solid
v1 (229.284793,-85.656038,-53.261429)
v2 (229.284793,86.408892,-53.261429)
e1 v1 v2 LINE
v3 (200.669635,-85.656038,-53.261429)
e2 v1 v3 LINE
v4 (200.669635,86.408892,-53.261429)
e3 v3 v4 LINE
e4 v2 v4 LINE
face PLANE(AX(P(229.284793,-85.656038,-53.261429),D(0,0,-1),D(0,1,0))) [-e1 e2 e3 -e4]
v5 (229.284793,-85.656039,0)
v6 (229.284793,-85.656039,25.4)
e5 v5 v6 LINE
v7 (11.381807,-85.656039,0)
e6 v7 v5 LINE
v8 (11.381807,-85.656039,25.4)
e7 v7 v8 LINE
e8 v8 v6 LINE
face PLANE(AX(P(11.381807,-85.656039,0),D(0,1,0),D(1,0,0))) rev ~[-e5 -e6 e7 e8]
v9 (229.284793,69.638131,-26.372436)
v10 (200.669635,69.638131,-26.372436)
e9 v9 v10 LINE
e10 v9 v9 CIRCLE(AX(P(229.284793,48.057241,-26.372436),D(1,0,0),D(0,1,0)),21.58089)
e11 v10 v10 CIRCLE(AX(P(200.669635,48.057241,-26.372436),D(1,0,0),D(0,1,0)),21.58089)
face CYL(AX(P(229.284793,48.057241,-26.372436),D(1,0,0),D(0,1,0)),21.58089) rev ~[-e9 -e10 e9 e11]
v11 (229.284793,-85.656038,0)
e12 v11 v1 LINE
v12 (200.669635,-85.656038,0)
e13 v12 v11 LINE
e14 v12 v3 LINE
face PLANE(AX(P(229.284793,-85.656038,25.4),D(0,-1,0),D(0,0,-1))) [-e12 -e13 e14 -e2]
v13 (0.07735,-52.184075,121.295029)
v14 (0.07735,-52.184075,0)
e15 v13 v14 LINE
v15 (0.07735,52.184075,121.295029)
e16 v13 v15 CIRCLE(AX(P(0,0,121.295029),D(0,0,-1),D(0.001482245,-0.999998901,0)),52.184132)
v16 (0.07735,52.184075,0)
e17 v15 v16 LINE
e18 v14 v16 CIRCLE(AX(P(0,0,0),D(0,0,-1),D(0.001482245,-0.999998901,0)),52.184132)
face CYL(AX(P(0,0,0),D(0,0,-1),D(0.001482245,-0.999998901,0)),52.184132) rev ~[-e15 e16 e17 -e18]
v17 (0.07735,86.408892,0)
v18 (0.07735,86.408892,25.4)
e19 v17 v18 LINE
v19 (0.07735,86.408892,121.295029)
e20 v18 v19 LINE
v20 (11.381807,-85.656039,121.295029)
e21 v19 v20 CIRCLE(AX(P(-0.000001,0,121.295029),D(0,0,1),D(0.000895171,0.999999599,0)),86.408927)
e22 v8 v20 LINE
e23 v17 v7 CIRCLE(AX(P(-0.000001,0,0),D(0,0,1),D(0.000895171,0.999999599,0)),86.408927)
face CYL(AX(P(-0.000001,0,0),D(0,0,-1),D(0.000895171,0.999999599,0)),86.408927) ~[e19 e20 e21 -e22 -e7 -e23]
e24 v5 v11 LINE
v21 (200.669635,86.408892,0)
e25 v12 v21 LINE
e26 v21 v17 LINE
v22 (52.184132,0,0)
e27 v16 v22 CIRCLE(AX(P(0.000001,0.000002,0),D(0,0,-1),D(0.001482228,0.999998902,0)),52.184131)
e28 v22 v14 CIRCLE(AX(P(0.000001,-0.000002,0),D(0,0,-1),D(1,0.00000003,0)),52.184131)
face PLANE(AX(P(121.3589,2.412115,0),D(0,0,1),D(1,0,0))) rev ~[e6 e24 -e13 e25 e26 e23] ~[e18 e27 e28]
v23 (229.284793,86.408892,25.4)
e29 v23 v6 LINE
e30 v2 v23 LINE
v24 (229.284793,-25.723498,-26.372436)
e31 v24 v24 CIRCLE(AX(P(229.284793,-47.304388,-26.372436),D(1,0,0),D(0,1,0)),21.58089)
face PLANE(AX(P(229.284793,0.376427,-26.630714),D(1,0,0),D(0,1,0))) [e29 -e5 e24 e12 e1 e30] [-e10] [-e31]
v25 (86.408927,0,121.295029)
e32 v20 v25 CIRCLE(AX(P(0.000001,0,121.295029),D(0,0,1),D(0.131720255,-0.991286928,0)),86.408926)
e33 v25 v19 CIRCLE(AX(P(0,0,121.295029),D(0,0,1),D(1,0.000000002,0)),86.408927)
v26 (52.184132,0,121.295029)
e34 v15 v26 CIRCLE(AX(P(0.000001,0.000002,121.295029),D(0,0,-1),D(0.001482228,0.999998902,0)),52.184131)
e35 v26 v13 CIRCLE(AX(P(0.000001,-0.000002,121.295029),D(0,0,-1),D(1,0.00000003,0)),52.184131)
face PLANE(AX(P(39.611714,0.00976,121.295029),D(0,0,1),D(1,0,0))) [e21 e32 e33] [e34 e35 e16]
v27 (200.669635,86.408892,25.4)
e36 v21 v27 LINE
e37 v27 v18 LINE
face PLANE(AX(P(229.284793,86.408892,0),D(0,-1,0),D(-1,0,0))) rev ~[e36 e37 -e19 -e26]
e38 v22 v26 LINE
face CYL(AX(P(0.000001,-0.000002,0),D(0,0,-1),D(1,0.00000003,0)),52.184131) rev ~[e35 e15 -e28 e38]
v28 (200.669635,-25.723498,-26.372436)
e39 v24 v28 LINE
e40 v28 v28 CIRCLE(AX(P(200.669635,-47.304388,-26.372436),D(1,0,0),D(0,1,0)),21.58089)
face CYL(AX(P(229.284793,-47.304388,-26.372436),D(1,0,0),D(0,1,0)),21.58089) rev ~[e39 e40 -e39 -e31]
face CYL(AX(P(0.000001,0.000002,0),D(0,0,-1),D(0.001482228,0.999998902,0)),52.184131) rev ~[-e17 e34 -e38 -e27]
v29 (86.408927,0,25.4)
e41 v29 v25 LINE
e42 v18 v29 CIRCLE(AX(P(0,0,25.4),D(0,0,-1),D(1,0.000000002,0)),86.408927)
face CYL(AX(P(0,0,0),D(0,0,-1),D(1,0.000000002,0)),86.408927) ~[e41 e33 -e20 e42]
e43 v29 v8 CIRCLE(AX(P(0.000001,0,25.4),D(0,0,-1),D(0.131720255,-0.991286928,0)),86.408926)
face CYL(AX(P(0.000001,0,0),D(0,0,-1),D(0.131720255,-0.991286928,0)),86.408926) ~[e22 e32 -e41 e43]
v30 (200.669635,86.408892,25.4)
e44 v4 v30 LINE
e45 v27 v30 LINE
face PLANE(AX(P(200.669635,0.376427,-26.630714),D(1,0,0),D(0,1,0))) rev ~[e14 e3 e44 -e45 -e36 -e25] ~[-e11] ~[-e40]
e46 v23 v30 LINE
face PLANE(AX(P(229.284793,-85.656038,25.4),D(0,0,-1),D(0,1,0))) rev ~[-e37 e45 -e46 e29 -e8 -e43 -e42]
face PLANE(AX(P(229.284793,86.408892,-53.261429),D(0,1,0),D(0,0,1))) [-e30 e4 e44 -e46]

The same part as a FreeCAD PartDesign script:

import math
import FreeCAD as App
import Part
import Sketcher
Q = App.Units.Quantity

doc = App.newDocument("Part")
params = doc.addObject("Spreadsheet::Sheet", "Params")
for row, (alias, value) in enumerate([
    ("pad1_length", "1 in"),
    ("pad2_length", "121.295029 mm"),
    ("pad3_length", "28.615158 mm"),
], start=1):
    params.set(f"A{row}", alias)
    params.set(f"B{row}", "=" + value)
    params.setAlias(f"B{row}", alias)

body = doc.addObject("PartDesign::Body", "Body")

sketch1 = body.newObject("Sketcher::SketchObject", "Sketch")
sketch1.AttachmentSupport = (doc.getObject("XY_Plane"), [""])
sketch1.MapMode = "FlatFace"
sketch1.addGeometry([
    Part.LineSegment(App.Vector(11.381807, -85.656039, 0), App.Vector(229.284793, -85.656039, 0)),
    Part.LineSegment(App.Vector(229.284793, -85.656039, 0), App.Vector(229.284793, 86.408892, 0)),
    Part.LineSegment(App.Vector(229.284793, 86.408892, 0), App.Vector(0.07735, 86.408892, 0)),
    Part.ArcOfCircle(Part.Circle(App.Vector(-0.000001, 0, 0), App.Vector(0, 0, 1), 86.408927), math.radians(89.94871), math.radians(277.569012)),
    Part.ArcOfCircle(Part.Circle(App.Vector(0.000001, 0.000002, 0), App.Vector(0, 0, 1), 52.184131), math.radians(-0.000002), math.radians(89.915075)),
    Part.ArcOfCircle(Part.Circle(App.Vector(0.000001, -0.000002, 0), App.Vector(0, 0, 1), 52.184131), math.radians(-89.915075), math.radians(0.000002)),
    Part.ArcOfCircle(Part.Circle(App.Vector(0, 0, 0), App.Vector(0, 0, 1), 52.184132), math.radians(89.915074), math.radians(270.084926)),
], False)
sketch1.addConstraint([
    Sketcher.Constraint("Coincident", 0, 2, 1, 1),
    Sketcher.Constraint("Coincident", 1, 2, 2, 1),
    Sketcher.Constraint("Coincident", 2, 2, 3, 1),
    Sketcher.Constraint("Coincident", 3, 2, 0, 1),
    Sketcher.Constraint("Tangent", 4, 1, 5, 2),
    Sketcher.Constraint("Tangent", 5, 1, 6, 2),
    Sketcher.Constraint("Tangent", 6, 1, 4, 2),
    Sketcher.Constraint("Horizontal", 0),
    Sketcher.Constraint("Vertical", 1),
    Sketcher.Constraint("Horizontal", 2),
    Sketcher.Constraint("Coincident", 3, 3, -1, 1),
    Sketcher.Constraint("Coincident", 4, 3, -1, 1),
    Sketcher.Constraint("PointOnObject", 4, 1, -1),
    Sketcher.Constraint("Vertical", 2, 2, 5, 1),
    Sketcher.Constraint("Vertical", 5, 1, 6, 1),
    Sketcher.Constraint("Radius", 4, Q("52.184131 mm")),
    Sketcher.Constraint("Radius", 3, Q("86.408927 mm")),
    Sketcher.Constraint("DistanceY", 1, 1, 1, 2, Q("172.064931 mm")),
    Sketcher.Constraint("DistanceX", 0, 1, 0, 2, Q("217.902986 mm")),
    Sketcher.Constraint("DistanceX", 2, 2, 2, 1, Q("229.207443 mm")),
])
pad1 = body.newObject("PartDesign::Pad", "Pad")
pad1.Profile = sketch1
pad1.setExpression("Length", "Params.pad1_length")

sketch2 = body.newObject("Sketcher::SketchObject", "Sketch001")
sketch2.AttachmentSupport = (doc.getObject("XY_Plane"), [""])
sketch2.MapMode = "FlatFace"
sketch2.addGeometry([
    Part.ArcOfCircle(Part.Circle(App.Vector(0.000001, 0, 0), App.Vector(0, 0, 1), 86.408926), math.radians(-82.430989), math.radians(0)),
    Part.ArcOfCircle(Part.Circle(App.Vector(0, 0, 0), App.Vector(0, 0, 1), 86.408927), math.radians(0), math.radians(89.948711)),
    Part.ArcOfCircle(Part.Circle(App.Vector(-0.000001, 0, 0), App.Vector(0, 0, 1), 86.408927), math.radians(89.94871), math.radians(277.569012)),
    Part.ArcOfCircle(Part.Circle(App.Vector(0.000001, 0.000002, 0), App.Vector(0, 0, 1), 52.184131), math.radians(-0.000002), math.radians(89.915075)),
    Part.ArcOfCircle(Part.Circle(App.Vector(0.000001, -0.000002, 0), App.Vector(0, 0, 1), 52.184131), math.radians(-89.915075), math.radians(0.000002)),
    Part.ArcOfCircle(Part.Circle(App.Vector(0, 0, 0), App.Vector(0, 0, 1), 52.184132), math.radians(89.915074), math.radians(270.084926)),
], False)
sketch2.addConstraint([
    Sketcher.Constraint("Tangent", 0, 2, 1, 1),
    Sketcher.Constraint("Tangent", 1, 2, 2, 1),
    Sketcher.Constraint("Tangent", 2, 2, 0, 1),
    Sketcher.Constraint("Tangent", 3, 1, 4, 2),
    Sketcher.Constraint("Tangent", 4, 1, 5, 2),
    Sketcher.Constraint("Tangent", 5, 1, 3, 2),
    Sketcher.Constraint("Coincident", 0, 3, -1, 1),
    Sketcher.Constraint("Coincident", 3, 3, -1, 1),
    Sketcher.Constraint("PointOnObject", 0, 2, -1),
    Sketcher.Constraint("PointOnObject", 3, 1, -1),
    Sketcher.Constraint("Vertical", 1, 2, 4, 1),
    Sketcher.Constraint("Vertical", 4, 1, 5, 1),
    Sketcher.Constraint("Radius", 3, Q("52.184131 mm")),
    Sketcher.Constraint("Radius", 0, Q("86.408926 mm")),
    Sketcher.Constraint("DistanceX", -1, 1, 1, 2, Q("0.07735 mm")),
    Sketcher.Constraint("DistanceY", 2, 2, -1, 1, Q("85.656039 mm")),
])
pad2 = body.newObject("PartDesign::Pad", "Pad001")
pad2.Profile = sketch2
pad2.setExpression("Length", "Params.pad2_length")

sketch3 = body.newObject("Sketcher::SketchObject", "Sketch002")
sketch3.AttachmentSupport = (doc.getObject("YZ_Plane"), [""])
sketch3.MapMode = "FlatFace"
sketch3.AttachmentOffset = App.Placement(App.Vector(0, 0, 229.284793), App.Rotation())
sketch3.addGeometry([
    Part.LineSegment(App.Vector(-85.656038, -53.261429, 0), App.Vector(86.408892, -53.261429, 0)),
    Part.LineSegment(App.Vector(86.408892, -53.261429, 0), App.Vector(86.408892, 25.4, 0)),
    Part.LineSegment(App.Vector(86.408892, 25.4, 0), App.Vector(-85.656038, 25.4, 0)),
    Part.LineSegment(App.Vector(-85.656038, 25.4, 0), App.Vector(-85.656038, -53.261429, 0)),
], False)
sketch3.addConstraint([
    Sketcher.Constraint("Coincident", 0, 2, 1, 1),
    Sketcher.Constraint("Coincident", 1, 2, 2, 1),
    Sketcher.Constraint("Coincident", 2, 2, 3, 1),
    Sketcher.Constraint("Coincident", 3, 2, 0, 1),
    Sketcher.Constraint("Horizontal", 0),
    Sketcher.Constraint("Vertical", 1),
    Sketcher.Constraint("Horizontal", 2),
    Sketcher.Constraint("Vertical", 3),
    Sketcher.Constraint("DistanceY", -1, 1, 1, 2, Q("1 in")),
    Sketcher.Constraint("DistanceX", 0, 1, 0, 2, Q("172.064931 mm")),
    Sketcher.Constraint("DistanceY", 1, 1, 1, 2, Q("78.661428 mm")),
    Sketcher.Constraint("DistanceX", 2, 2, -1, 1, Q("85.656038 mm")),
])
pad3 = body.newObject("PartDesign::Pad", "Pad002")
pad3.Profile = sketch3
pad3.setExpression("Length", "Params.pad3_length")
pad3.Reversed = True

sketch4 = body.newObject("Sketcher::SketchObject", "Sketch003")
sketch4.AttachmentSupport = (doc.getObject("YZ_Plane"), [""])
sketch4.MapMode = "FlatFace"
sketch4.AttachmentOffset = App.Placement(App.Vector(0, 0, 229.284793), App.Rotation())
sketch4.addGeometry([
    Part.Circle(App.Vector(-47.304388, -26.372436, 0), App.Vector(0, 0, 1), 21.58089),
    Part.Circle(App.Vector(48.057241, -26.372436, 0), App.Vector(0, 0, 1), 21.58089),
], False)
sketch4.addConstraint([
    Sketcher.Constraint("Equal", 0, 1),
    Sketcher.Constraint("Horizontal", 0, 3, 1, 3),
    Sketcher.Constraint("Diameter", 0, Q("43.16178 mm")),
    Sketcher.Constraint("DistanceX", 0, 3, -1, 1, Q("47.304388 mm")),
    Sketcher.Constraint("DistanceX", -1, 1, 1, 3, Q("48.057241 mm")),
    Sketcher.Constraint("DistanceY", 0, 3, -1, 1, Q("26.372436 mm")),
])
pocket1 = body.newObject("PartDesign::Pocket", "Pocket")
pocket1.Profile = sketch4
pocket1.Type = "ThroughAll"

doc.recompute()
